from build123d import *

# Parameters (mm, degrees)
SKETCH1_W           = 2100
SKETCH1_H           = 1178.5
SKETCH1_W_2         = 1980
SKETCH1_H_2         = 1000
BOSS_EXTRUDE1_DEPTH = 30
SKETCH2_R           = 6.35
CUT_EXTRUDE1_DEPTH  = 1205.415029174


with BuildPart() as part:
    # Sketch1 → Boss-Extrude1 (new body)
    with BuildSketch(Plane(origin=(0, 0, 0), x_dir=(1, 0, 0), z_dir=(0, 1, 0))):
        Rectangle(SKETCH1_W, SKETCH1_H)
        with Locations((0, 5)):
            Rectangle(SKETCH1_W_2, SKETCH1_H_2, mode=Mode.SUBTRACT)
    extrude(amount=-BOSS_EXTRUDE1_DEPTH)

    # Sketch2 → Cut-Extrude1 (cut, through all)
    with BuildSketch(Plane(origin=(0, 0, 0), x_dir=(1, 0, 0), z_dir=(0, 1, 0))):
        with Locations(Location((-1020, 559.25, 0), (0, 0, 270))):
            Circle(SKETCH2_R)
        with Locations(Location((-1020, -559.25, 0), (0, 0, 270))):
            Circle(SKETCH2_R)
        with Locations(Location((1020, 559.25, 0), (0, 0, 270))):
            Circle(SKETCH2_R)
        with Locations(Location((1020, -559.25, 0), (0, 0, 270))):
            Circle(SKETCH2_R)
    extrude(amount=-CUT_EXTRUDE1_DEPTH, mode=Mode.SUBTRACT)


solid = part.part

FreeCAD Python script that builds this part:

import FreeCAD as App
import Part
import Sketcher
Q = App.Units.Quantity


def add_polygon(sketch, points):
    """Adds a closed chain of lines whose ends are joined by coincident constraints."""
    first, n = sketch.GeometryCount, len(points)
    for a, b in zip(points, points[1:] + points[:1]):
        sketch.addGeometry(Part.LineSegment(App.Vector(*a, 0), App.Vector(*b, 0)), False)
    for i in range(n):
        sketch.addConstraint(Sketcher.Constraint("Coincident", first + i, 2, first + (i + 1) % n, 1))

doc = App.newDocument("Part")
body = doc.addObject("PartDesign::Body", "Body")

# Sketch on XZ plane
sketch1 = doc.addObject("Sketcher::SketchObject", "Sketch")
body.addObject(sketch1)
sketch1.AttachmentSupport = (doc.XZ_Plane, [""])
sketch1.MapMode = "FlatFace"
add_polygon(sketch1, [(-1050, -589), (-1050, 589), (1050, 589), (1050, -589)])  # lines 0-3
add_polygon(sketch1, [(990, 495), (-990, 495), (-990, -505), (990, -505)])  # lines 4-7
sketch1.addConstraint(Sketcher.Constraint("Vertical", 0))
sketch1.addConstraint(Sketcher.Constraint("Horizontal", 1))
sketch1.addConstraint(Sketcher.Constraint("Vertical", 2))
sketch1.addConstraint(Sketcher.Constraint("Horizontal", 3))
sketch1.addConstraint(Sketcher.Constraint("Horizontal", 4))
sketch1.addConstraint(Sketcher.Constraint("Vertical", 5))
sketch1.addConstraint(Sketcher.Constraint("Horizontal", 6))
sketch1.addConstraint(Sketcher.Constraint("Vertical", 7))
sketch1.addConstraint(Sketcher.Constraint("Symmetric", 0, 2, 2, 2, -1, 1))
sketch1.addConstraint(Sketcher.Constraint("DistanceX", 1, 1, 1, 2, Q("2100 mm")))
sketch1.addConstraint(Sketcher.Constraint("DistanceX", 4, 2, 4, 1, Q("1980 mm")))
sketch1.addConstraint(Sketcher.Constraint("DistanceY", 5, 2, 5, 1, Q("1000 mm")))
sketch1.addConstraint(Sketcher.Constraint("DistanceY", 0, 1, 0, 2, Q("1178.5 mm")))
sketch1.addConstraint(Sketcher.Constraint("DistanceX", 4, 2, -1, 1, Q("990 mm")))
sketch1.addConstraint(Sketcher.Constraint("DistanceY", -1, 1, 4, 2, Q("495 mm")))
pad1 = doc.addObject("PartDesign::Pad", "Pad")
body.addObject(pad1)
pad1.Profile = sketch1
pad1.Length = 30

# Sketch on XZ plane
sketch2 = doc.addObject("Sketcher::SketchObject", "Sketch001")
body.addObject(sketch2)
sketch2.AttachmentSupport = (doc.XZ_Plane, [""])
sketch2.MapMode = "FlatFace"
sketch2.addGeometry(Part.Circle(App.Vector(-1020, -559, 0), App.Vector(0, 0, 1), 6), False)
sketch2.addGeometry(Part.Circle(App.Vector(-1020, 559, 0), App.Vector(0, 0, 1), 6), False)
sketch2.addGeometry(Part.Circle(App.Vector(1020, -559, 0), App.Vector(0, 0, 1), 6), False)
sketch2.addGeometry(Part.Circle(App.Vector(1020, 559, 0), App.Vector(0, 0, 1), 6), False)
sketch2.addConstraint(Sketcher.Constraint("Equal", 0, 1))
sketch2.addConstraint(Sketcher.Constraint("Equal", 1, 2))
sketch2.addConstraint(Sketcher.Constraint("Equal", 2, 3))
sketch2.addConstraint(Sketcher.Constraint("Symmetric", 1, 3, 2, 3, -1, 1))
sketch2.addConstraint(Sketcher.Constraint("Symmetric", 0, 3, 3, 3, -1, 1))
sketch2.addConstraint(Sketcher.Constraint("Symmetric", 0, 3, 2, 3, -2))
sketch2.addConstraint(Sketcher.Constraint("Diameter", 0, Q("12.7 mm")))
sketch2.addConstraint(Sketcher.Constraint("DistanceX", 0, 3, -1, 1, Q("1020 mm")))
sketch2.addConstraint(Sketcher.Constraint("DistanceY", 0, 3, 1, 3, Q("1118.5 mm")))
pocket1 = doc.addObject("PartDesign::Pocket", "Pocket")
body.addObject(pocket1)
pocket1.Profile = sketch2
pocket1.Type = "ThroughAll"
pocket1.Reversed = True

doc.recompute()
